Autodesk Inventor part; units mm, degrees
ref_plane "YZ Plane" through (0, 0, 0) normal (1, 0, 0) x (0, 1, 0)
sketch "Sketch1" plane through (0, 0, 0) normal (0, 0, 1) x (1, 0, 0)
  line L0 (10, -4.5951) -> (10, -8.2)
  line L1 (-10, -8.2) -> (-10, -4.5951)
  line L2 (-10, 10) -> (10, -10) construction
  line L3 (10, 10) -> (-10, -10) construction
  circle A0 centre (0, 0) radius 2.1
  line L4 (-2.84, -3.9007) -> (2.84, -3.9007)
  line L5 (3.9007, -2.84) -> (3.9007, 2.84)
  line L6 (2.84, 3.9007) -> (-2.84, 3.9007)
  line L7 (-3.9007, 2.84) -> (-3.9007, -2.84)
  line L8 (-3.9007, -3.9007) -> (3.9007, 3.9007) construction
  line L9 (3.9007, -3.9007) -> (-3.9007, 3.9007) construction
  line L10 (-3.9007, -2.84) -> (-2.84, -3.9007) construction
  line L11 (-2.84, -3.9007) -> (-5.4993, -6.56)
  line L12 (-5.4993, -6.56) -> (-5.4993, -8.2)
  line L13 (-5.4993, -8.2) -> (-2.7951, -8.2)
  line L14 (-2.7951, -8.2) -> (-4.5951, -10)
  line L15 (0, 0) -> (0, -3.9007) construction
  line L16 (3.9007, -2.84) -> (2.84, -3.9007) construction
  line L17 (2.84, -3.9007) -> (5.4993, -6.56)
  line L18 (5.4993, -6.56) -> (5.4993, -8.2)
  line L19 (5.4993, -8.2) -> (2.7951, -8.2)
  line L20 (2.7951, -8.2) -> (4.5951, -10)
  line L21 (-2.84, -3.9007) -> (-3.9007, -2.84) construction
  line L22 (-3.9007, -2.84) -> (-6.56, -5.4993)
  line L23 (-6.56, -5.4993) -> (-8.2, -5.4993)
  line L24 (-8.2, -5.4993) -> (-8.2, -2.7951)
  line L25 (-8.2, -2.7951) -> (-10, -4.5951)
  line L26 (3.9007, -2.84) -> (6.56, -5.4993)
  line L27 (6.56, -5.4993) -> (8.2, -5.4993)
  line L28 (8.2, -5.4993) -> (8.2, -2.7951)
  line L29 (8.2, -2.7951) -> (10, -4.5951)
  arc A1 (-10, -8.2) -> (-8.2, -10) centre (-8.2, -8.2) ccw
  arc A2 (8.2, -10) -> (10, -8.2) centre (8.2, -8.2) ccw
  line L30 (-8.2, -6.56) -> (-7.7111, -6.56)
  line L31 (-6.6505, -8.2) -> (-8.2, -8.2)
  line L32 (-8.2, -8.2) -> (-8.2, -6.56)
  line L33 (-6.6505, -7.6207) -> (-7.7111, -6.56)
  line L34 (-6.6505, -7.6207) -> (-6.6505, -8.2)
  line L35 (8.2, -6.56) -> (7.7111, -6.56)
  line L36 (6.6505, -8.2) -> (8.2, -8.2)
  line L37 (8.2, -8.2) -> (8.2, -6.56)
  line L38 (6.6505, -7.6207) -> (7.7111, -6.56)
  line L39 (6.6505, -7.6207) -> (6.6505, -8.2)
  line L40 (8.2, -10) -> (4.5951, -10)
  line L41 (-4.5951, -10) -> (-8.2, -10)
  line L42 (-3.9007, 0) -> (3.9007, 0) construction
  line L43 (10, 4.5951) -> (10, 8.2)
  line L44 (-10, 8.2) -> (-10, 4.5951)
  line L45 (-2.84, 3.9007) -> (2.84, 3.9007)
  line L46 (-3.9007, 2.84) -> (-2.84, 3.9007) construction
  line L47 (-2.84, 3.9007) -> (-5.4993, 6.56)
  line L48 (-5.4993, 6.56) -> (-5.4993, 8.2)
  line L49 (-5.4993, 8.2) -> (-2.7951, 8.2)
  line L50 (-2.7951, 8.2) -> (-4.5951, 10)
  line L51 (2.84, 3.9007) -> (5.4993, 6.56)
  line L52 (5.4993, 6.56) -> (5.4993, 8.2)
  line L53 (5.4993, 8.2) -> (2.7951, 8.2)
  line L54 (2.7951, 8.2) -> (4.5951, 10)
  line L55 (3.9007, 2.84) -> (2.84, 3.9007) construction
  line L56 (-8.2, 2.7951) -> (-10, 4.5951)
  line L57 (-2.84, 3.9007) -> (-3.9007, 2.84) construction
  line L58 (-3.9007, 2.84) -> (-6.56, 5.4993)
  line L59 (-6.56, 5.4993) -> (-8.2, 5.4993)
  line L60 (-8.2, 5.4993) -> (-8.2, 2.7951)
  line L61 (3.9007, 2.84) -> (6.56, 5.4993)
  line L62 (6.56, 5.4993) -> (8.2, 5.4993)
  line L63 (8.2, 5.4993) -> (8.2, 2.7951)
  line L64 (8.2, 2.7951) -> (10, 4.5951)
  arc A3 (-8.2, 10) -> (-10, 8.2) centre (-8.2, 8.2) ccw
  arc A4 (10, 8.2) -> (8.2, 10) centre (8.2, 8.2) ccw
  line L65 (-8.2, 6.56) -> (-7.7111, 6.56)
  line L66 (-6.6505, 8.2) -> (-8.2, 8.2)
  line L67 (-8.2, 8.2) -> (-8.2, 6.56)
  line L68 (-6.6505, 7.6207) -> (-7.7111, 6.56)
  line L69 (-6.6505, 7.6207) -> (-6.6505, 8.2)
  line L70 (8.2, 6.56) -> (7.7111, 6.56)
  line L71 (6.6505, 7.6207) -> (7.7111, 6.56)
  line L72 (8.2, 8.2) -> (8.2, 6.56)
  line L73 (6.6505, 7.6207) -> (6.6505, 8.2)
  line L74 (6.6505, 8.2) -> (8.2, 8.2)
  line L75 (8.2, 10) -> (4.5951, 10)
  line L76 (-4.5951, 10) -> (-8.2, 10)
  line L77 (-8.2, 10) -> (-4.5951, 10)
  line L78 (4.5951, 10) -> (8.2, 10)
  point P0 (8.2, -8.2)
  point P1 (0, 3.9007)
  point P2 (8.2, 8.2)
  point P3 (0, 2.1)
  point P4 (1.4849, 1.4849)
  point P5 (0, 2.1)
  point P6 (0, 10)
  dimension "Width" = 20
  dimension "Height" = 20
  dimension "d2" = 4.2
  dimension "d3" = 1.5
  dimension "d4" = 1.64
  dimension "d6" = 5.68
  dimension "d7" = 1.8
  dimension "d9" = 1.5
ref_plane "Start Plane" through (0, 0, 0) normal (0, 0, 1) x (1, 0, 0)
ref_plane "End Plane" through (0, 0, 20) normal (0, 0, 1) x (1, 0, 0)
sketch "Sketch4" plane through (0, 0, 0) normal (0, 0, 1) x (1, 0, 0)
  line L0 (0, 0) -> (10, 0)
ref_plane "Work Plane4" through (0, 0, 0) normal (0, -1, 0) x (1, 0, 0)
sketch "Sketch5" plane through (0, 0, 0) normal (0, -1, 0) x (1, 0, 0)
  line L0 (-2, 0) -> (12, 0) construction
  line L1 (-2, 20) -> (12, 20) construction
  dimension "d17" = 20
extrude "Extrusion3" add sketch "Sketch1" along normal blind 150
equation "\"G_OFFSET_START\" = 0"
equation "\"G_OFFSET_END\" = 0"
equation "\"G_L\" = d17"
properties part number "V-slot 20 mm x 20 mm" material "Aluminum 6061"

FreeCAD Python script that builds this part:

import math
import FreeCAD as App
import Part
import Sketcher
from FreeCAD import Vector
Q = App.Units.Quantity

doc = App.newDocument("Part")
params = doc.addObject("Spreadsheet::Sheet", "Params")
for row, (alias, value) in enumerate([
    ("sketch1_diameter", "4.2 mm"),
    ("sketch1_radius", "1.8 mm"),
    ("sketch1_length", "1.5 mm"),
    ("sketch1_width", "1.64 mm"),
    ("sketch1_width2", "5.68 mm"),
    ("pad1_length", "150 mm"),
], start=1):
    params.set(f"A{row}", alias)
    params.set(f"B{row}", "=" + value)
    params.setAlias(f"B{row}", alias)

body = doc.addObject("PartDesign::Body", "Body")

sketch1 = doc.addObject("Sketcher::SketchObject", "Sketch")
body.addObject(sketch1)
sketch1.AttachmentSupport = (doc.XY_Plane, [""])
sketch1.MapMode = "FlatFace"
sketch1.addGeometry([
    Part.LineSegment(Vector(10, -8.2, 0), Vector(10, -4.6, 0)),
    Part.LineSegment(Vector(10, -4.6, 0), Vector(8.2, -2.8, 0)),
    Part.LineSegment(Vector(8.2, -2.8, 0), Vector(8.2, -5.5, 0)),
    Part.LineSegment(Vector(8.2, -5.5, 0), Vector(6.56, -5.5, 0)),
    Part.LineSegment(Vector(6.56, -5.5, 0), Vector(3.9, -2.84, 0)),
    Part.LineSegment(Vector(3.9, -2.84, 0), Vector(3.9, 2.84, 0)),
    Part.LineSegment(Vector(3.9, 2.84, 0), Vector(6.56, 5.5, 0)),
    Part.LineSegment(Vector(6.56, 5.5, 0), Vector(8.2, 5.5, 0)),
    Part.LineSegment(Vector(8.2, 5.5, 0), Vector(8.2, 2.8, 0)),
    Part.LineSegment(Vector(8.2, 2.8, 0), Vector(10, 4.6, 0)),
    Part.LineSegment(Vector(10, 4.6, 0), Vector(10, 8.2, 0)),
    Part.ArcOfCircle(Part.Circle(Vector(8.2, 8.2, 0), Vector(0, 0, 1), 1.8), math.radians(0), math.radians(90)),
    Part.LineSegment(Vector(8.2, 10, 0), Vector(4.6, 10, 0)),
    Part.LineSegment(Vector(4.6, 10, 0), Vector(2.8, 8.2, 0)),
    Part.LineSegment(Vector(2.8, 8.2, 0), Vector(5.5, 8.2, 0)),
    Part.LineSegment(Vector(5.5, 8.2, 0), Vector(5.5, 6.56, 0)),
    Part.LineSegment(Vector(5.5, 6.56, 0), Vector(2.84, 3.9, 0)),
    Part.LineSegment(Vector(2.84, 3.9, 0), Vector(-2.84, 3.9, 0)),
    Part.LineSegment(Vector(-2.84, 3.9, 0), Vector(-5.5, 6.56, 0)),
    Part.LineSegment(Vector(-5.5, 6.56, 0), Vector(-5.5, 8.2, 0)),
    Part.LineSegment(Vector(-5.5, 8.2, 0), Vector(-2.8, 8.2, 0)),
    Part.LineSegment(Vector(-2.8, 8.2, 0), Vector(-4.6, 10, 0)),
    Part.LineSegment(Vector(-4.6, 10, 0), Vector(-8.2, 10, 0)),
    Part.ArcOfCircle(Part.Circle(Vector(-8.2, 8.2, 0), Vector(0, 0, 1), 1.8), math.radians(90), math.radians(180)),
    Part.LineSegment(Vector(-10, 8.2, 0), Vector(-10, 4.6, 0)),
    Part.LineSegment(Vector(-10, 4.6, 0), Vector(-8.2, 2.8, 0)),
    Part.LineSegment(Vector(-8.2, 2.8, 0), Vector(-8.2, 5.5, 0)),
    Part.LineSegment(Vector(-8.2, 5.5, 0), Vector(-6.56, 5.5, 0)),
    Part.LineSegment(Vector(-6.56, 5.5, 0), Vector(-3.9, 2.84, 0)),
    Part.LineSegment(Vector(-3.9, 2.84, 0), Vector(-3.9, -2.84, 0)),
    Part.LineSegment(Vector(-3.9, -2.84, 0), Vector(-6.56, -5.5, 0)),
    Part.LineSegment(Vector(-6.56, -5.5, 0), Vector(-8.2, -5.5, 0)),
    Part.LineSegment(Vector(-8.2, -5.5, 0), Vector(-8.2, -2.8, 0)),
    Part.LineSegment(Vector(-8.2, -2.8, 0), Vector(-10, -4.6, 0)),
    Part.LineSegment(Vector(-10, -4.6, 0), Vector(-10, -8.2, 0)),
    Part.ArcOfCircle(Part.Circle(Vector(-8.2, -8.2, 0), Vector(0, 0, 1), 1.8), math.radians(180), math.radians(270)),
    Part.LineSegment(Vector(-8.2, -10, 0), Vector(-4.6, -10, 0)),
    Part.LineSegment(Vector(-4.6, -10, 0), Vector(-2.8, -8.2, 0)),
    Part.LineSegment(Vector(-2.8, -8.2, 0), Vector(-5.5, -8.2, 0)),
    Part.LineSegment(Vector(-5.5, -8.2, 0), Vector(-5.5, -6.56, 0)),
    Part.LineSegment(Vector(-5.5, -6.56, 0), Vector(-2.84, -3.9, 0)),
    Part.LineSegment(Vector(-2.84, -3.9, 0), Vector(2.84, -3.9, 0)),
    Part.LineSegment(Vector(2.84, -3.9, 0), Vector(5.5, -6.56, 0)),
    Part.LineSegment(Vector(5.5, -6.56, 0), Vector(5.5, -8.2, 0)),
    Part.LineSegment(Vector(5.5, -8.2, 0), Vector(2.8, -8.2, 0)),
    Part.LineSegment(Vector(2.8, -8.2, 0), Vector(4.6, -10, 0)),
    Part.LineSegment(Vector(4.6, -10, 0), Vector(8.2, -10, 0)),
    Part.ArcOfCircle(Part.Circle(Vector(8.2, -8.2, 0), Vector(0, 0, 1), 1.8), math.radians(-90), math.radians(0)),
    Part.LineSegment(Vector(-8.2, -8.2, 0), Vector(-8.2, -6.56, 0)),
    Part.LineSegment(Vector(-8.2, -6.56, 0), Vector(-7.71, -6.56, 0)),
    Part.LineSegment(Vector(-7.71, -6.56, 0), Vector(-6.65, -7.62, 0)),
    Part.LineSegment(Vector(-6.65, -7.62, 0), Vector(-6.65, -8.2, 0)),
    Part.LineSegment(Vector(-6.65, -8.2, 0), Vector(-8.2, -8.2, 0)),
    Part.LineSegment(Vector(7.71, -6.56, 0), Vector(8.2, -6.56, 0)),
    Part.LineSegment(Vector(8.2, -6.56, 0), Vector(8.2, -8.2, 0)),
    Part.LineSegment(Vector(8.2, -8.2, 0), Vector(6.65, -8.2, 0)),
    Part.LineSegment(Vector(6.65, -8.2, 0), Vector(6.65, -7.62, 0)),
    Part.LineSegment(Vector(6.65, -7.62, 0), Vector(7.71, -6.56, 0)),
    Part.LineSegment(Vector(-7.71, 6.56, 0), Vector(-8.2, 6.56, 0)),
    Part.LineSegment(Vector(-8.2, 6.56, 0), Vector(-8.2, 8.2, 0)),
    Part.LineSegment(Vector(-8.2, 8.2, 0), Vector(-6.65, 8.2, 0)),
    Part.LineSegment(Vector(-6.65, 8.2, 0), Vector(-6.65, 7.62, 0)),
    Part.LineSegment(Vector(-6.65, 7.62, 0), Vector(-7.71, 6.56, 0)),
    Part.Circle(Vector(0, 0, 0), Vector(0, 0, 1), 2.1),
    Part.LineSegment(Vector(8.2, 8.2, 0), Vector(8.2, 6.56, 0)),
    Part.LineSegment(Vector(8.2, 6.56, 0), Vector(7.71, 6.56, 0)),
    Part.LineSegment(Vector(7.71, 6.56, 0), Vector(6.65, 7.62, 0)),
    Part.LineSegment(Vector(6.65, 7.62, 0), Vector(6.65, 8.2, 0)),
    Part.LineSegment(Vector(6.65, 8.2, 0), Vector(8.2, 8.2, 0)),
], False)
sketch1.addConstraint([
    Sketcher.Constraint("Coincident", 0, 2, 1, 1),
    Sketcher.Constraint("Coincident", 1, 2, 2, 1),
    Sketcher.Constraint("Coincident", 2, 2, 3, 1),
    Sketcher.Constraint("Coincident", 3, 2, 4, 1),
    Sketcher.Constraint("Coincident", 4, 2, 5, 1),
    Sketcher.Constraint("Coincident", 5, 2, 6, 1),
    Sketcher.Constraint("Coincident", 6, 2, 7, 1),
    Sketcher.Constraint("Coincident", 7, 2, 8, 1),
    Sketcher.Constraint("Coincident", 8, 2, 9, 1),
    Sketcher.Constraint("Coincident", 9, 2, 10, 1),
    Sketcher.Constraint("Tangent", 10, 2, 11, 1),
    Sketcher.Constraint("Tangent", 11, 2, 12, 1),
    Sketcher.Constraint("Coincident", 12, 2, 13, 1),
    Sketcher.Constraint("Coincident", 13, 2, 14, 1),
    Sketcher.Constraint("Coincident", 14, 2, 15, 1),
    Sketcher.Constraint("Coincident", 15, 2, 16, 1),
    Sketcher.Constraint("Coincident", 16, 2, 17, 1),
    Sketcher.Constraint("Coincident", 17, 2, 18, 1),
    Sketcher.Constraint("Coincident", 18, 2, 19, 1),
    Sketcher.Constraint("Coincident", 19, 2, 20, 1),
    Sketcher.Constraint("Coincident", 20, 2, 21, 1),
    Sketcher.Constraint("Coincident", 21, 2, 22, 1),
    Sketcher.Constraint("Tangent", 22, 2, 23, 1),
    Sketcher.Constraint("Tangent", 23, 2, 24, 1),
    Sketcher.Constraint("Coincident", 24, 2, 25, 1),
    Sketcher.Constraint("Coincident", 25, 2, 26, 1),
    Sketcher.Constraint("Coincident", 26, 2, 27, 1),
    Sketcher.Constraint("Coincident", 27, 2, 28, 1),
    Sketcher.Constraint("Coincident", 28, 2, 29, 1),
    Sketcher.Constraint("Coincident", 29, 2, 30, 1),
    Sketcher.Constraint("Coincident", 30, 2, 31, 1),
    Sketcher.Constraint("Coincident", 31, 2, 32, 1),
    Sketcher.Constraint("Coincident", 32, 2, 33, 1),
    Sketcher.Constraint("Coincident", 33, 2, 34, 1),
    Sketcher.Constraint("Tangent", 34, 2, 35, 1),
    Sketcher.Constraint("Tangent", 35, 2, 36, 1),
    Sketcher.Constraint("Coincident", 36, 2, 37, 1),
    Sketcher.Constraint("Coincident", 37, 2, 38, 1),
    Sketcher.Constraint("Coincident", 38, 2, 39, 1),
    Sketcher.Constraint("Coincident", 39, 2, 40, 1),
    Sketcher.Constraint("Coincident", 40, 2, 41, 1),
    Sketcher.Constraint("Coincident", 41, 2, 42, 1),
    Sketcher.Constraint("Coincident", 42, 2, 43, 1),
    Sketcher.Constraint("Coincident", 43, 2, 44, 1),
    Sketcher.Constraint("Coincident", 44, 2, 45, 1),
    Sketcher.Constraint("Coincident", 45, 2, 46, 1),
    Sketcher.Constraint("Tangent", 46, 2, 47, 1),
    Sketcher.Constraint("Tangent", 47, 2, 0, 1),
    Sketcher.Constraint("Coincident", 48, 2, 49, 1),
    Sketcher.Constraint("Coincident", 49, 2, 50, 1),
    Sketcher.Constraint("Coincident", 50, 2, 51, 1),
    Sketcher.Constraint("Coincident", 51, 2, 52, 1),
    Sketcher.Constraint("Coincident", 52, 2, 48, 1),
    Sketcher.Constraint("Coincident", 53, 2, 54, 1),
    Sketcher.Constraint("Coincident", 54, 2, 55, 1),
    Sketcher.Constraint("Coincident", 55, 2, 56, 1),
    Sketcher.Constraint("Coincident", 56, 2, 57, 1),
    Sketcher.Constraint("Coincident", 57, 2, 53, 1),
    Sketcher.Constraint("Coincident", 58, 2, 59, 1),
    Sketcher.Constraint("Coincident", 59, 2, 60, 1),
    Sketcher.Constraint("Coincident", 60, 2, 61, 1),
    Sketcher.Constraint("Coincident", 61, 2, 62, 1),
    Sketcher.Constraint("Coincident", 62, 2, 58, 1),
    Sketcher.Constraint("Coincident", 64, 2, 65, 1),
    Sketcher.Constraint("Coincident", 65, 2, 66, 1),
    Sketcher.Constraint("Coincident", 66, 2, 67, 1),
    Sketcher.Constraint("Coincident", 67, 2, 68, 1),
    Sketcher.Constraint("Coincident", 68, 2, 64, 1),
    Sketcher.Constraint("Vertical", 0),
    Sketcher.Constraint("Vertical", 2),
    Sketcher.Constraint("Horizontal", 3),
    Sketcher.Constraint("Vertical", 5),
    Sketcher.Constraint("Horizontal", 7),
    Sketcher.Constraint("Vertical", 8),
    Sketcher.Constraint("Vertical", 10),
    Sketcher.Constraint("Horizontal", 12),
    Sketcher.Constraint("Horizontal", 14),
    Sketcher.Constraint("Vertical", 15),
    Sketcher.Constraint("Horizontal", 17),
    Sketcher.Constraint("Vertical", 19),
    Sketcher.Constraint("Horizontal", 20),
    Sketcher.Constraint("Horizontal", 22),
    Sketcher.Constraint("Vertical", 24),
    Sketcher.Constraint("Vertical", 26),
    Sketcher.Constraint("Horizontal", 27),
    Sketcher.Constraint("Vertical", 29),
    Sketcher.Constraint("Horizontal", 31),
    Sketcher.Constraint("Vertical", 32),
    Sketcher.Constraint("Vertical", 34),
    Sketcher.Constraint("Horizontal", 36),
    Sketcher.Constraint("Horizontal", 38),
    Sketcher.Constraint("Vertical", 39),
    Sketcher.Constraint("Horizontal", 41),
    Sketcher.Constraint("Vertical", 43),
    Sketcher.Constraint("Horizontal", 44),
    Sketcher.Constraint("Horizontal", 46),
    Sketcher.Constraint("Vertical", 48),
    Sketcher.Constraint("Horizontal", 49),
    Sketcher.Constraint("Vertical", 51),
    Sketcher.Constraint("Horizontal", 52),
    Sketcher.Constraint("Horizontal", 53),
    Sketcher.Constraint("Vertical", 54),
    Sketcher.Constraint("Horizontal", 55),
    Sketcher.Constraint("Vertical", 56),
    Sketcher.Constraint("Horizontal", 58),
    Sketcher.Constraint("Vertical", 59),
    Sketcher.Constraint("Horizontal", 60),
    Sketcher.Constraint("Vertical", 61),
    Sketcher.Constraint("Vertical", 64),
    Sketcher.Constraint("Horizontal", 65),
    Sketcher.Constraint("Vertical", 67),
    Sketcher.Constraint("Horizontal", 68),
    Sketcher.Constraint("Coincident", 63, 3, -1, 1),
    Sketcher.Constraint("Coincident", 52, 2, 35, 3),
    Sketcher.Constraint("Coincident", 54, 2, 47, 3),
    Sketcher.Constraint("Coincident", 59, 2, 23, 3),
    Sketcher.Constraint("Coincident", 68, 2, 11, 3),
    Sketcher.Constraint("Equal", 11, 23),
    Sketcher.Constraint("Equal", 23, 35),
    Sketcher.Constraint("Equal", 35, 47),
    Sketcher.Constraint("Symmetric", 11, 3, 35, 3, -1, 1),
    Sketcher.Constraint("Symmetric", 23, 3, 47, 3, -1, 1),
    Sketcher.Constraint("Symmetric", 1, 2, 25, 2, -1, 1),
    Sketcher.Constraint("Symmetric", 3, 2, 27, 2, -1, 1),
    Sketcher.Constraint("Symmetric", 4, 2, 28, 2, -1, 1),
    Sketcher.Constraint("Symmetric", 6, 2, 30, 2, -1, 1),
    Sketcher.Constraint("Symmetric", 8, 2, 32, 2, -1, 1),
    Sketcher.Constraint("Symmetric", 13, 2, 37, 2, -1, 1),
    Sketcher.Constraint("Symmetric", 15, 2, 39, 2, -1, 1),
    Sketcher.Constraint("Symmetric", 16, 2, 40, 2, -1, 1),
    Sketcher.Constraint("Symmetric", 18, 2, 42, 2, -1, 1),
    Sketcher.Constraint("Symmetric", 20, 2, 44, 2, -1, 1),
    Sketcher.Constraint("Symmetric", 56, 2, 61, 2, -1, 1),
    Sketcher.Constraint("Symmetric", 57, 2, 62, 2, -1, 1),
    Sketcher.Constraint("Symmetric", 49, 2, 65, 2, -1, 1),
    Sketcher.Constraint("Symmetric", 50, 2, 66, 2, -1, 1),
    Sketcher.Constraint("Symmetric", 11, 3, 23, 3, -2),
    Sketcher.Constraint("Symmetric", 15, 2, 18, 2, -2),
    Sketcher.Constraint("Symmetric", 13, 2, 20, 2, -2),
    Sketcher.Constraint("Symmetric", 8, 2, 25, 2, -2),
    Sketcher.Constraint("Symmetric", 6, 2, 27, 2, -2),
    Sketcher.Constraint("Symmetric", 50, 2, 56, 2, -2),
    Sketcher.Constraint("Symmetric", 49, 2, 57, 2, -2),
    Sketcher.Constraint("Parallel", 1, 4),
    Sketcher.Constraint("Perpendicular", 4, 6),
    Sketcher.Constraint("Parallel", 6, 9),
    Sketcher.Constraint("Parallel", 9, 13),
    Sketcher.Constraint("Parallel", 13, 16),
    Sketcher.Constraint("Perpendicular", 16, 18),
    Sketcher.Constraint("Parallel", 18, 21),
    Sketcher.Constraint("Parallel", 21, 25),
    Sketcher.Constraint("Perpendicular", 28, 30),
    Sketcher.Constraint("Parallel", 30, 33),
    Sketcher.Constraint("Parallel", 33, 37),
    Sketcher.Constraint("Perpendicular", 40, 42),
    Sketcher.Constraint("Parallel", 42, 45),
    Sketcher.Constraint("Parallel", 45, 50),
    Sketcher.Constraint("Perpendicular", 50, 57),
    Sketcher.Constraint("Horizontal", 10, 2, 13, 2),
    Sketcher.Constraint("Horizontal", 42, 2, 48, 2),
    Sketcher.Constraint("Vertical", 47, 3, 1, 2),
    Sketcher.Constraint("Equal", 46, 0),
    Sketcher.Constraint("Equal", 44, 2),
    Sketcher.Constraint("Equal", 41, 5),
    Sketcher.Constraint("Equal", 31, 15),
    Sketcher.Constraint("Equal", 6, 16),
    Sketcher.Constraint("Diameter", 63, Q("4.2 mm")),
    Sketcher.Constraint("Radius", 11, Q("1.8 mm")),
    Sketcher.Constraint("Distance", 50, Q("1.5 mm")),
    Sketcher.Constraint("DistanceX", 3, 2, 3, 1, Q("1.64 mm")),
    Sketcher.Constraint("DistanceX", 17, 2, 17, 1, Q("5.68 mm")),
    Sketcher.Constraint("DistanceX", -1, 1, 0, 2, Q("10 mm")),
    Sketcher.Constraint("DistanceX", 12, 2, 12, 1, Q("3.605 mm")),
    Sketcher.Constraint("DistanceX", 49, 1, 49, 2, Q("0.489 mm")),
    Sketcher.Constraint("DistanceX", 14, 1, 14, 2, Q("2.7042 mm")),
])
sketch1.setExpression("Constraints[166]", "Params.sketch1_diameter")
sketch1.setExpression("Constraints[167]", "Params.sketch1_radius")
sketch1.setExpression("Constraints[168]", "Params.sketch1_length")
sketch1.setExpression("Constraints[169]", "Params.sketch1_width")
sketch1.setExpression("Constraints[170]", "Params.sketch1_width2")
pad1 = doc.addObject("PartDesign::Pad", "Pad")
body.addObject(pad1)
pad1.Profile = sketch1
pad1.setExpression("Length", "Params.pad1_length")

doc.recompute()
